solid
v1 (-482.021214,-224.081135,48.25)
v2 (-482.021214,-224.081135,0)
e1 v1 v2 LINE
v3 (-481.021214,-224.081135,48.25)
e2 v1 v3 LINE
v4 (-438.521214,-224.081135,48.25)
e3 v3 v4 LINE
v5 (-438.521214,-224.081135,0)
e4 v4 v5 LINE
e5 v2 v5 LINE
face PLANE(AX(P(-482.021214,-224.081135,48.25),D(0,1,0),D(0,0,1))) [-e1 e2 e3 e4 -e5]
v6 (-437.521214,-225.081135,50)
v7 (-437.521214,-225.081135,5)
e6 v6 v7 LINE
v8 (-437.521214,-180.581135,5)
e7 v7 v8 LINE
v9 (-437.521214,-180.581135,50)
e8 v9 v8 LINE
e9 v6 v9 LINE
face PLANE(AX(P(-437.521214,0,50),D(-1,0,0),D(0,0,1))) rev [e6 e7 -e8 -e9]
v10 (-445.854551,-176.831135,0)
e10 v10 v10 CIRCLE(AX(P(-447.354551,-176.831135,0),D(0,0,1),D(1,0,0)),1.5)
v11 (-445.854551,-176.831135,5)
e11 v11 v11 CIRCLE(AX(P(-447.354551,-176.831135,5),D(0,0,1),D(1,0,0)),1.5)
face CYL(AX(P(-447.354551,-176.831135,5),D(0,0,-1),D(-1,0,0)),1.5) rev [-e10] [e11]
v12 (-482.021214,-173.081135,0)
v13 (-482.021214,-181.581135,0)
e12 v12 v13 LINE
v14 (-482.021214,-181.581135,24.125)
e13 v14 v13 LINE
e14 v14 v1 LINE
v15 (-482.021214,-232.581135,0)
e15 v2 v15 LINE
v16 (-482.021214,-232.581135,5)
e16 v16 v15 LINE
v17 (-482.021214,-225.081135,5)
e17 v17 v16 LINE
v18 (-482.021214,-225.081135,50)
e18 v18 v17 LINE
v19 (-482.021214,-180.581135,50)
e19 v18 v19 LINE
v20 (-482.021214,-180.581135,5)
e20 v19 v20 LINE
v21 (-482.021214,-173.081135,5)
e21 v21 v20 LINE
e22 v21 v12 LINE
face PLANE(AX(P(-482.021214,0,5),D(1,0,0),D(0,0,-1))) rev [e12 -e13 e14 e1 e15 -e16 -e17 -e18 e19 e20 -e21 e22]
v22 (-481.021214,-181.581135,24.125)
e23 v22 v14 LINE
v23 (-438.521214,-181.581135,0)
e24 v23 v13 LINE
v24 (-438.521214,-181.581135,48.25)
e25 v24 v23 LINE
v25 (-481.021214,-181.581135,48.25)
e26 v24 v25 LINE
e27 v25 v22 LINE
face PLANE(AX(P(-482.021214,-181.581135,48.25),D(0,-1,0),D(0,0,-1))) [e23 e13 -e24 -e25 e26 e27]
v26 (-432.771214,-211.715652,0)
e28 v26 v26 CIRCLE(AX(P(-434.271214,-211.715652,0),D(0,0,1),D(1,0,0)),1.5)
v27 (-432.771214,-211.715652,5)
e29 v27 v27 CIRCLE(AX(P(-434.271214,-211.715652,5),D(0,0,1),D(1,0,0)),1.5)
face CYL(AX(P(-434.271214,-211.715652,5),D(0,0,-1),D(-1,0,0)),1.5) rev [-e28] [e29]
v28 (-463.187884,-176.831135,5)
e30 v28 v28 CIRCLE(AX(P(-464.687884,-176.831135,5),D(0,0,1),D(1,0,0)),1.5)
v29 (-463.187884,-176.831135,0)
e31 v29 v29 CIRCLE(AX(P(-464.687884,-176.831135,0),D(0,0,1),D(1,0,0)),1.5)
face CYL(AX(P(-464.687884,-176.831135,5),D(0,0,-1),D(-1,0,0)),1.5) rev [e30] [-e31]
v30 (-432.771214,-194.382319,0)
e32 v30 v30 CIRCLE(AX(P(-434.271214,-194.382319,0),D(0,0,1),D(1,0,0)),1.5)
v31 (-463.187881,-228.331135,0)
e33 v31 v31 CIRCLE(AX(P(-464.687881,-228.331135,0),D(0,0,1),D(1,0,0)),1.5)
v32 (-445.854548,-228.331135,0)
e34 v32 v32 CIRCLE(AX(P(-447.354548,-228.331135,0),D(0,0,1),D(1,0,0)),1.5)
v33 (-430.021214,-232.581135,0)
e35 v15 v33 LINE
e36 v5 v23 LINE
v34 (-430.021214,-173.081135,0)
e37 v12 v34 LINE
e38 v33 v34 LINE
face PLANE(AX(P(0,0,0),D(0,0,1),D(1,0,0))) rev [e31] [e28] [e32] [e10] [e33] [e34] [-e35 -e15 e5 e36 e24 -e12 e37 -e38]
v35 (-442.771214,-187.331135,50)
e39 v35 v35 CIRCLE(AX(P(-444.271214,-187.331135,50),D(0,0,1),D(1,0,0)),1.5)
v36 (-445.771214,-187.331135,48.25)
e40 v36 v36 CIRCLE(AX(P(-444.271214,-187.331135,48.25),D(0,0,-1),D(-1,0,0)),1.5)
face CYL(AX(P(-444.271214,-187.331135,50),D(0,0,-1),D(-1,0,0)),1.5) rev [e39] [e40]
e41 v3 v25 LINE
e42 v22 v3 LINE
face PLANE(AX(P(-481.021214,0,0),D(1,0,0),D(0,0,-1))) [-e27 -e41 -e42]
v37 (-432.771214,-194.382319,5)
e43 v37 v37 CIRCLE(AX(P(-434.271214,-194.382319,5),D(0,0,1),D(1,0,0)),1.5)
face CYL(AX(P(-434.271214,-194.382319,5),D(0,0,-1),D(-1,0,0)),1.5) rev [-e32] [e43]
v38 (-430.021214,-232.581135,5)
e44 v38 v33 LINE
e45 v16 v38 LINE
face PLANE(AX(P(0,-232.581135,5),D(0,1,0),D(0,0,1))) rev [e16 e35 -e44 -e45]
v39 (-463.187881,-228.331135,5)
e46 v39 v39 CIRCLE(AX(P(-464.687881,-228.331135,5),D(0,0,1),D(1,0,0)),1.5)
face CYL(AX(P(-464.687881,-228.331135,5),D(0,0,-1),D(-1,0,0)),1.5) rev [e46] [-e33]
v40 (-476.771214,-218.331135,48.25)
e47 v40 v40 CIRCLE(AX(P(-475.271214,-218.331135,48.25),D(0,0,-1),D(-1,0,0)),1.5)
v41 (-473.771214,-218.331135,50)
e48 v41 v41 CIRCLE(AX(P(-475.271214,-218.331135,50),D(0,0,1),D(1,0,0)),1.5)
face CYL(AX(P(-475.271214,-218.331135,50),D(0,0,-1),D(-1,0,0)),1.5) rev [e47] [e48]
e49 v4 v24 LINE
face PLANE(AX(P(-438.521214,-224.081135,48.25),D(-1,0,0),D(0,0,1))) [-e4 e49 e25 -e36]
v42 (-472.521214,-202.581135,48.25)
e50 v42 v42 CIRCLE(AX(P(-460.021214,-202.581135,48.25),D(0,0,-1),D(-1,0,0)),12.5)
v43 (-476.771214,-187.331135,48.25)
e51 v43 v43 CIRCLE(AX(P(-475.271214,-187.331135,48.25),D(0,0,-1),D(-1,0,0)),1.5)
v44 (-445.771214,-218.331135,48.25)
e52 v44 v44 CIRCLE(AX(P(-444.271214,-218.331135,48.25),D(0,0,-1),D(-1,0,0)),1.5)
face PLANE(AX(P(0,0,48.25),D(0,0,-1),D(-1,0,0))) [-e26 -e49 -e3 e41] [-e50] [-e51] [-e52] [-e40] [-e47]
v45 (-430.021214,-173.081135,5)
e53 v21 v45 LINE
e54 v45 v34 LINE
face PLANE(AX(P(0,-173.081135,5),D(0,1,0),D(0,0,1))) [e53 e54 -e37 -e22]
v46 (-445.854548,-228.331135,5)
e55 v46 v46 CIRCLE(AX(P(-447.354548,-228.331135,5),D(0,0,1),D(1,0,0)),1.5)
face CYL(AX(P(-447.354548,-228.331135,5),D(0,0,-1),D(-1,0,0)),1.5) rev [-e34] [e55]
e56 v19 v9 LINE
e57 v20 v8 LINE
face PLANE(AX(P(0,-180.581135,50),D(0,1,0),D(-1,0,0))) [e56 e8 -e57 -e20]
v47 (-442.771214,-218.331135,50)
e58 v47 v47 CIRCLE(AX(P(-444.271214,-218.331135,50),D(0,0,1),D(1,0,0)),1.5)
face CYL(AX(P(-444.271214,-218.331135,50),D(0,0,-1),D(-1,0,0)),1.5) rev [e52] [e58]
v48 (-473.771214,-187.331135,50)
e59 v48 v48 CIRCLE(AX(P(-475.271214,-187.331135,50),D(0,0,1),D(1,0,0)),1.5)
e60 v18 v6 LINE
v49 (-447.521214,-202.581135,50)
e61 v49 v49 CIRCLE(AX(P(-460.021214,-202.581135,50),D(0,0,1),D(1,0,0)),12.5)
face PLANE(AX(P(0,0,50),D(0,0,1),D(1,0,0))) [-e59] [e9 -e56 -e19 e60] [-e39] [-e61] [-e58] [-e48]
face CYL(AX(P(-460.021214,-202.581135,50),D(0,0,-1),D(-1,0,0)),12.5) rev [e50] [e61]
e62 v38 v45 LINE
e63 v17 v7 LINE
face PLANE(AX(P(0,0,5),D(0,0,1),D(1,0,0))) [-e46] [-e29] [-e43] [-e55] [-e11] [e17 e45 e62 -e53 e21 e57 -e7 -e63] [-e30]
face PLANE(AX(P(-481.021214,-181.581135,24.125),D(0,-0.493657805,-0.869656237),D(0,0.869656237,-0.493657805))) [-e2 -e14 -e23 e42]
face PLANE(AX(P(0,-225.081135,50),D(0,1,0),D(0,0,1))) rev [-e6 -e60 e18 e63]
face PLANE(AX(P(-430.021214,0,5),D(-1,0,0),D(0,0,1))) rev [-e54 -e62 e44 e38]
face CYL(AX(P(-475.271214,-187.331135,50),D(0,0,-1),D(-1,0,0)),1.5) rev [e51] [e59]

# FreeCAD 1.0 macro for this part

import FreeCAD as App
import Part
import Sketcher

V = App.Vector

doc = App.newDocument("Part")
body = doc.addObject("PartDesign::Body", "Body")

# Sketch on XY plane
sketch1 = body.newObject("Sketcher::SketchObject", "Sketch")
sketch1.AttachmentSupport = (doc.getObject("XY_Plane"), [""])
sketch1.MapMode = "FlatFace"
sketch1.addGeometry(Part.LineSegment(V(-437.5, -225.1, 0), V(-482, -225.1, 0)), False)
sketch1.addGeometry(Part.LineSegment(V(-482, -225.1, 0), V(-482, -232.6, 0)), False)
sketch1.addGeometry(Part.LineSegment(V(-482, -232.6, 0), V(-430, -232.6, 0)), False)
sketch1.addGeometry(Part.LineSegment(V(-430, -232.6, 0), V(-430, -173.1, 0)), False)
sketch1.addGeometry(Part.LineSegment(V(-430, -173.1, 0), V(-482, -173.1, 0)), False)
sketch1.addGeometry(Part.LineSegment(V(-482, -173.1, 0), V(-482, -180.6, 0)), False)
sketch1.addGeometry(Part.LineSegment(V(-482, -180.6, 0), V(-437.5, -180.6, 0)), False)
sketch1.addGeometry(Part.LineSegment(V(-437.5, -180.6, 0), V(-437.5, -225.1, 0)), False)
sketch1.addGeometry(Part.Circle(V(-464.7, -228.3, 0), V(0, 0, 1), 1.5), False)
sketch1.addGeometry(Part.Circle(V(-447.4, -228.3, 0), V(0, 0, 1), 1.5), False)
sketch1.addGeometry(Part.Circle(V(-434.3, -211.7, 0), V(0, 0, 1), 1.5), False)
sketch1.addGeometry(Part.Circle(V(-464.7, -176.8, 0), V(0, 0, 1), 1.5), False)
sketch1.addGeometry(Part.Circle(V(-434.3, -194.4, 0), V(0, 0, 1), 1.5), False)
sketch1.addGeometry(Part.Circle(V(-447.4, -176.8, 0), V(0, 0, 1), 1.5), False)
sketch1.addConstraint(Sketcher.Constraint("Coincident", 0, 2, 1, 1))
sketch1.addConstraint(Sketcher.Constraint("Coincident", 1, 2, 2, 1))
sketch1.addConstraint(Sketcher.Constraint("Coincident", 2, 2, 3, 1))
sketch1.addConstraint(Sketcher.Constraint("Coincident", 3, 2, 4, 1))
sketch1.addConstraint(Sketcher.Constraint("Coincident", 4, 2, 5, 1))
sketch1.addConstraint(Sketcher.Constraint("Coincident", 5, 2, 6, 1))
sketch1.addConstraint(Sketcher.Constraint("Coincident", 6, 2, 7, 1))
sketch1.addConstraint(Sketcher.Constraint("Coincident", 7, 2, 0, 1))
sketch1.addConstraint(Sketcher.Constraint("Horizontal", 0))
sketch1.addConstraint(Sketcher.Constraint("Vertical", 1))
sketch1.addConstraint(Sketcher.Constraint("Horizontal", 2))
sketch1.addConstraint(Sketcher.Constraint("Vertical", 3))
sketch1.addConstraint(Sketcher.Constraint("Horizontal", 4))
sketch1.addConstraint(Sketcher.Constraint("Vertical", 5))
sketch1.addConstraint(Sketcher.Constraint("Horizontal", 6))
sketch1.addConstraint(Sketcher.Constraint("Vertical", 7))
sketch1.addConstraint(Sketcher.Constraint("Equal", 8, 9))
sketch1.addConstraint(Sketcher.Constraint("Equal", 9, 10))
sketch1.addConstraint(Sketcher.Constraint("Equal", 10, 11))
sketch1.addConstraint(Sketcher.Constraint("Equal", 11, 12))
sketch1.addConstraint(Sketcher.Constraint("Equal", 12, 13))
sketch1.addConstraint(Sketcher.Constraint("Horizontal", 8, 3, 9, 3))
sketch1.addConstraint(Sketcher.Constraint("Horizontal", 11, 3, 13, 3))
sketch1.addConstraint(Sketcher.Constraint("Vertical", 10, 3, 12, 3))
sketch1.addConstraint(Sketcher.Constraint("Vertical", 1, 2, 4, 2))
sketch1.addConstraint(Sketcher.Constraint("Equal", 1, 5))
sketch1.addConstraint(Sketcher.Constraint("Equal", 6, 7))
sketch1.addConstraint(Sketcher.Constraint("Diameter", 8, 3.0))
sketch1.addConstraint(Sketcher.Constraint("DistanceX", 2, 1, 2, 2, 52.0))
sketch1.addConstraint(Sketcher.Constraint("DistanceX", 0, 2, 0, 1, 44.5))
sketch1.addConstraint(Sketcher.Constraint("DistanceY", 1, 2, 1, 1, 7.5))
sketch1.addConstraint(Sketcher.Constraint("DistanceY", 8, 3, 11, 3, 51.5))
sketch1.addConstraint(Sketcher.Constraint("DistanceY", 8, 3, 0, 2, 3.25))
sketch1.addConstraint(Sketcher.Constraint("DistanceX", 0, 2, 10, 3, 47.75))
sketch1.addConstraint(Sketcher.Constraint("DistanceX", 8, 3, -1, 1, 464.687881))
sketch1.addConstraint(Sketcher.Constraint("DistanceY", 10, 3, -1, 1, 211.715652))
sketch1.addConstraint(Sketcher.Constraint("DistanceY", 12, 3, -1, 1, 194.382319))
sketch1.addConstraint(Sketcher.Constraint("DistanceX", 13, 3, -1, 1, 447.354551))
sketch1.addConstraint(Sketcher.Constraint("DistanceX", 11, 3, 10, 3, 30.41667))
sketch1.addConstraint(Sketcher.Constraint("DistanceY", 8, 3, -1, 1, 228.331135))
sketch1.addConstraint(Sketcher.Constraint("DistanceX", 9, 3, -1, 1, 447.354548))
sketch1.addConstraint(Sketcher.Constraint("DistanceX", 10, 3, -1, 1, 434.271214))
pad1 = body.newObject("PartDesign::Pad", "Pad")
pad1.Profile = sketch1
pad1.Length = 5

# Sketch on XY plane
sketch2 = body.newObject("Sketcher::SketchObject", "Sketch001")
sketch2.AttachmentSupport = (doc.getObject("XY_Plane"), [""])
sketch2.MapMode = "FlatFace"
sketch2.addGeometry(Part.LineSegment(V(-482, -180.6, 0), V(-482, -225.1, 0)), False)
sketch2.addGeometry(Part.LineSegment(V(-482, -225.1, 0), V(-437.5, -225.1, 0)), False)
sketch2.addGeometry(Part.LineSegment(V(-437.5, -225.1, 0), V(-437.5, -180.6, 0)), False)
sketch2.addGeometry(Part.LineSegment(V(-437.5, -180.6, 0), V(-482, -180.6, 0)), False)
sketch2.addGeometry(Part.Circle(V(-475.3, -218.3, 0), V(0, 0, 1), 1.5), False)
sketch2.addGeometry(Part.Circle(V(-444.3, -218.3, 0), V(0, 0, 1), 1.5), False)
sketch2.addGeometry(Part.Circle(V(-460, -202.6, 0), V(0, 0, 1), 12.5), False)
sketch2.addGeometry(Part.Circle(V(-475.3, -187.3, 0), V(0, 0, 1), 1.5), False)
sketch2.addGeometry(Part.Circle(V(-444.3, -187.3, 0), V(0, 0, 1), 1.5), False)
sketch2.addConstraint(Sketcher.Constraint("Coincident", 0, 2, 1, 1))
sketch2.addConstraint(Sketcher.Constraint("Coincident", 1, 2, 2, 1))
sketch2.addConstraint(Sketcher.Constraint("Coincident", 2, 2, 3, 1))
sketch2.addConstraint(Sketcher.Constraint("Coincident", 3, 2, 0, 1))
sketch2.addConstraint(Sketcher.Constraint("Vertical", 0))
sketch2.addConstraint(Sketcher.Constraint("Horizontal", 1))
sketch2.addConstraint(Sketcher.Constraint("Vertical", 2))
sketch2.addConstraint(Sketcher.Constraint("Horizontal", 3))
sketch2.addConstraint(Sketcher.Constraint("Equal", 4, 5))
sketch2.addConstraint(Sketcher.Constraint("Equal", 5, 7))
sketch2.addConstraint(Sketcher.Constraint("Equal", 7, 8))
sketch2.addConstraint(Sketcher.Constraint("Horizontal", 4, 3, 5, 3))
sketch2.addConstraint(Sketcher.Constraint("Horizontal", 7, 3, 8, 3))
sketch2.addConstraint(Sketcher.Constraint("Vertical", 4, 3, 7, 3))
sketch2.addConstraint(Sketcher.Constraint("Vertical", 5, 3, 8, 3))
sketch2.addConstraint(Sketcher.Constraint("Equal", 3, 0))
sketch2.addConstraint(Sketcher.Constraint("Diameter", 4, 3.0))
sketch2.addConstraint(Sketcher.Constraint("Diameter", 6, 25.0))
sketch2.addConstraint(Sketcher.Constraint("DistanceX", 1, 1, 1, 2, 44.5))
sketch2.addConstraint(Sketcher.Constraint("DistanceX", 4, 3, 5, 3, 31.0))
sketch2.addConstraint(Sketcher.Constraint("DistanceY", 4, 3, 7, 3, 31.0))
sketch2.addConstraint(Sketcher.Constraint("DistanceX", 0, 2, 6, 3, 22.0))
sketch2.addConstraint(Sketcher.Constraint("DistanceY", 6, 3, 2, 2, 22.0))
sketch2.addConstraint(Sketcher.Constraint("DistanceX", 4, 3, 6, 3, 15.25))
sketch2.addConstraint(Sketcher.Constraint("DistanceY", 4, 3, 6, 3, 15.75))
sketch2.addConstraint(Sketcher.Constraint("DistanceX", 4, 3, -1, 1, 475.271214))
sketch2.addConstraint(Sketcher.Constraint("DistanceY", 4, 3, -1, 1, 218.331135))
pad2 = body.newObject("PartDesign::Pad", "Pad001")
pad2.Profile = sketch2
pad2.Length = 50

# Sketch on XY plane
sketch3 = body.newObject("Sketcher::SketchObject", "Sketch002")
sketch3.AttachmentSupport = (doc.getObject("XY_Plane"), [""])
sketch3.MapMode = "FlatFace"
sketch3.addGeometry(Part.LineSegment(V(-482, -182, 0), V(-482, -224, 0)), False)
sketch3.addGeometry(Part.LineSegment(V(-482, -224, 0), V(-439, -224, 0)), False)
sketch3.addGeometry(Part.LineSegment(V(-439, -224, 0), V(-439, -182, 0)), False)
sketch3.addGeometry(Part.LineSegment(V(-439, -182, 0), V(-482, -182, 0)), False)
sketch3.addConstraint(Sketcher.Constraint("Coincident", 0, 2, 1, 1))
sketch3.addConstraint(Sketcher.Constraint("Coincident", 1, 2, 2, 1))
sketch3.addConstraint(Sketcher.Constraint("Coincident", 2, 2, 3, 1))
sketch3.addConstraint(Sketcher.Constraint("Coincident", 3, 2, 0, 1))
sketch3.addConstraint(Sketcher.Constraint("Vertical", 0))
sketch3.addConstraint(Sketcher.Constraint("Horizontal", 1))
sketch3.addConstraint(Sketcher.Constraint("Vertical", 2))
sketch3.addConstraint(Sketcher.Constraint("Horizontal", 3))
sketch3.addConstraint(Sketcher.Constraint("DistanceX", 1, 1, 1, 2, 43.5))
sketch3.addConstraint(Sketcher.Constraint("DistanceY", 0, 2, 0, 1, 42.5))
sketch3.addConstraint(Sketcher.Constraint("DistanceX", 0, 2, -1, 1, 482.021214))
sketch3.addConstraint(Sketcher.Constraint("DistanceY", 0, 2, -1, 1, 224.081135))
pocket1 = body.newObject("PartDesign::Pocket", "Pocket")
pocket1.Profile = sketch3
pocket1.Length = 48.25
pocket1.Reversed = True

# Sketch on YZ plane
sketch4 = body.newObject("Sketcher::SketchObject", "Sketch003")
sketch4.AttachmentSupport = (doc.getObject("YZ_Plane"), [""])
sketch4.MapMode = "FlatFace"
sketch4.AttachmentOffset = App.Placement(V(0, 0, -482.021214), App.Rotation())
sketch4.addGeometry(Part.LineSegment(V(-182, 24, 0), V(-224, 48, 0)), False)
sketch4.addGeometry(Part.LineSegment(V(-224, 48, 0), V(-182, 48, 0)), False)
sketch4.addGeometry(Part.LineSegment(V(-182, 48, 0), V(-182, 24, 0)), False)
sketch4.addConstraint(Sketcher.Constraint("Coincident", 0, 2, 1, 1))
sketch4.addConstraint(Sketcher.Constraint("Coincident", 1, 2, 2, 1))
sketch4.addConstraint(Sketcher.Constraint("Coincident", 2, 2, 0, 1))
sketch4.addConstraint(Sketcher.Constraint("Horizontal", 1))
sketch4.addConstraint(Sketcher.Constraint("Vertical", 2))
sketch4.addConstraint(Sketcher.Constraint("DistanceX", 1, 1, 1, 2, 42.5))
sketch4.addConstraint(Sketcher.Constraint("DistanceY", 2, 2, 2, 1, 24.125))
sketch4.addConstraint(Sketcher.Constraint("DistanceY", -1, 1, 0, 2, 48.25))
sketch4.addConstraint(Sketcher.Constraint("DistanceX", 0, 2, -1, 1, 224.081135))
pad3 = body.newObject("PartDesign::Pad", "Pad002")
pad3.Profile = sketch4
pad3.Length = 1

doc.recompute()
